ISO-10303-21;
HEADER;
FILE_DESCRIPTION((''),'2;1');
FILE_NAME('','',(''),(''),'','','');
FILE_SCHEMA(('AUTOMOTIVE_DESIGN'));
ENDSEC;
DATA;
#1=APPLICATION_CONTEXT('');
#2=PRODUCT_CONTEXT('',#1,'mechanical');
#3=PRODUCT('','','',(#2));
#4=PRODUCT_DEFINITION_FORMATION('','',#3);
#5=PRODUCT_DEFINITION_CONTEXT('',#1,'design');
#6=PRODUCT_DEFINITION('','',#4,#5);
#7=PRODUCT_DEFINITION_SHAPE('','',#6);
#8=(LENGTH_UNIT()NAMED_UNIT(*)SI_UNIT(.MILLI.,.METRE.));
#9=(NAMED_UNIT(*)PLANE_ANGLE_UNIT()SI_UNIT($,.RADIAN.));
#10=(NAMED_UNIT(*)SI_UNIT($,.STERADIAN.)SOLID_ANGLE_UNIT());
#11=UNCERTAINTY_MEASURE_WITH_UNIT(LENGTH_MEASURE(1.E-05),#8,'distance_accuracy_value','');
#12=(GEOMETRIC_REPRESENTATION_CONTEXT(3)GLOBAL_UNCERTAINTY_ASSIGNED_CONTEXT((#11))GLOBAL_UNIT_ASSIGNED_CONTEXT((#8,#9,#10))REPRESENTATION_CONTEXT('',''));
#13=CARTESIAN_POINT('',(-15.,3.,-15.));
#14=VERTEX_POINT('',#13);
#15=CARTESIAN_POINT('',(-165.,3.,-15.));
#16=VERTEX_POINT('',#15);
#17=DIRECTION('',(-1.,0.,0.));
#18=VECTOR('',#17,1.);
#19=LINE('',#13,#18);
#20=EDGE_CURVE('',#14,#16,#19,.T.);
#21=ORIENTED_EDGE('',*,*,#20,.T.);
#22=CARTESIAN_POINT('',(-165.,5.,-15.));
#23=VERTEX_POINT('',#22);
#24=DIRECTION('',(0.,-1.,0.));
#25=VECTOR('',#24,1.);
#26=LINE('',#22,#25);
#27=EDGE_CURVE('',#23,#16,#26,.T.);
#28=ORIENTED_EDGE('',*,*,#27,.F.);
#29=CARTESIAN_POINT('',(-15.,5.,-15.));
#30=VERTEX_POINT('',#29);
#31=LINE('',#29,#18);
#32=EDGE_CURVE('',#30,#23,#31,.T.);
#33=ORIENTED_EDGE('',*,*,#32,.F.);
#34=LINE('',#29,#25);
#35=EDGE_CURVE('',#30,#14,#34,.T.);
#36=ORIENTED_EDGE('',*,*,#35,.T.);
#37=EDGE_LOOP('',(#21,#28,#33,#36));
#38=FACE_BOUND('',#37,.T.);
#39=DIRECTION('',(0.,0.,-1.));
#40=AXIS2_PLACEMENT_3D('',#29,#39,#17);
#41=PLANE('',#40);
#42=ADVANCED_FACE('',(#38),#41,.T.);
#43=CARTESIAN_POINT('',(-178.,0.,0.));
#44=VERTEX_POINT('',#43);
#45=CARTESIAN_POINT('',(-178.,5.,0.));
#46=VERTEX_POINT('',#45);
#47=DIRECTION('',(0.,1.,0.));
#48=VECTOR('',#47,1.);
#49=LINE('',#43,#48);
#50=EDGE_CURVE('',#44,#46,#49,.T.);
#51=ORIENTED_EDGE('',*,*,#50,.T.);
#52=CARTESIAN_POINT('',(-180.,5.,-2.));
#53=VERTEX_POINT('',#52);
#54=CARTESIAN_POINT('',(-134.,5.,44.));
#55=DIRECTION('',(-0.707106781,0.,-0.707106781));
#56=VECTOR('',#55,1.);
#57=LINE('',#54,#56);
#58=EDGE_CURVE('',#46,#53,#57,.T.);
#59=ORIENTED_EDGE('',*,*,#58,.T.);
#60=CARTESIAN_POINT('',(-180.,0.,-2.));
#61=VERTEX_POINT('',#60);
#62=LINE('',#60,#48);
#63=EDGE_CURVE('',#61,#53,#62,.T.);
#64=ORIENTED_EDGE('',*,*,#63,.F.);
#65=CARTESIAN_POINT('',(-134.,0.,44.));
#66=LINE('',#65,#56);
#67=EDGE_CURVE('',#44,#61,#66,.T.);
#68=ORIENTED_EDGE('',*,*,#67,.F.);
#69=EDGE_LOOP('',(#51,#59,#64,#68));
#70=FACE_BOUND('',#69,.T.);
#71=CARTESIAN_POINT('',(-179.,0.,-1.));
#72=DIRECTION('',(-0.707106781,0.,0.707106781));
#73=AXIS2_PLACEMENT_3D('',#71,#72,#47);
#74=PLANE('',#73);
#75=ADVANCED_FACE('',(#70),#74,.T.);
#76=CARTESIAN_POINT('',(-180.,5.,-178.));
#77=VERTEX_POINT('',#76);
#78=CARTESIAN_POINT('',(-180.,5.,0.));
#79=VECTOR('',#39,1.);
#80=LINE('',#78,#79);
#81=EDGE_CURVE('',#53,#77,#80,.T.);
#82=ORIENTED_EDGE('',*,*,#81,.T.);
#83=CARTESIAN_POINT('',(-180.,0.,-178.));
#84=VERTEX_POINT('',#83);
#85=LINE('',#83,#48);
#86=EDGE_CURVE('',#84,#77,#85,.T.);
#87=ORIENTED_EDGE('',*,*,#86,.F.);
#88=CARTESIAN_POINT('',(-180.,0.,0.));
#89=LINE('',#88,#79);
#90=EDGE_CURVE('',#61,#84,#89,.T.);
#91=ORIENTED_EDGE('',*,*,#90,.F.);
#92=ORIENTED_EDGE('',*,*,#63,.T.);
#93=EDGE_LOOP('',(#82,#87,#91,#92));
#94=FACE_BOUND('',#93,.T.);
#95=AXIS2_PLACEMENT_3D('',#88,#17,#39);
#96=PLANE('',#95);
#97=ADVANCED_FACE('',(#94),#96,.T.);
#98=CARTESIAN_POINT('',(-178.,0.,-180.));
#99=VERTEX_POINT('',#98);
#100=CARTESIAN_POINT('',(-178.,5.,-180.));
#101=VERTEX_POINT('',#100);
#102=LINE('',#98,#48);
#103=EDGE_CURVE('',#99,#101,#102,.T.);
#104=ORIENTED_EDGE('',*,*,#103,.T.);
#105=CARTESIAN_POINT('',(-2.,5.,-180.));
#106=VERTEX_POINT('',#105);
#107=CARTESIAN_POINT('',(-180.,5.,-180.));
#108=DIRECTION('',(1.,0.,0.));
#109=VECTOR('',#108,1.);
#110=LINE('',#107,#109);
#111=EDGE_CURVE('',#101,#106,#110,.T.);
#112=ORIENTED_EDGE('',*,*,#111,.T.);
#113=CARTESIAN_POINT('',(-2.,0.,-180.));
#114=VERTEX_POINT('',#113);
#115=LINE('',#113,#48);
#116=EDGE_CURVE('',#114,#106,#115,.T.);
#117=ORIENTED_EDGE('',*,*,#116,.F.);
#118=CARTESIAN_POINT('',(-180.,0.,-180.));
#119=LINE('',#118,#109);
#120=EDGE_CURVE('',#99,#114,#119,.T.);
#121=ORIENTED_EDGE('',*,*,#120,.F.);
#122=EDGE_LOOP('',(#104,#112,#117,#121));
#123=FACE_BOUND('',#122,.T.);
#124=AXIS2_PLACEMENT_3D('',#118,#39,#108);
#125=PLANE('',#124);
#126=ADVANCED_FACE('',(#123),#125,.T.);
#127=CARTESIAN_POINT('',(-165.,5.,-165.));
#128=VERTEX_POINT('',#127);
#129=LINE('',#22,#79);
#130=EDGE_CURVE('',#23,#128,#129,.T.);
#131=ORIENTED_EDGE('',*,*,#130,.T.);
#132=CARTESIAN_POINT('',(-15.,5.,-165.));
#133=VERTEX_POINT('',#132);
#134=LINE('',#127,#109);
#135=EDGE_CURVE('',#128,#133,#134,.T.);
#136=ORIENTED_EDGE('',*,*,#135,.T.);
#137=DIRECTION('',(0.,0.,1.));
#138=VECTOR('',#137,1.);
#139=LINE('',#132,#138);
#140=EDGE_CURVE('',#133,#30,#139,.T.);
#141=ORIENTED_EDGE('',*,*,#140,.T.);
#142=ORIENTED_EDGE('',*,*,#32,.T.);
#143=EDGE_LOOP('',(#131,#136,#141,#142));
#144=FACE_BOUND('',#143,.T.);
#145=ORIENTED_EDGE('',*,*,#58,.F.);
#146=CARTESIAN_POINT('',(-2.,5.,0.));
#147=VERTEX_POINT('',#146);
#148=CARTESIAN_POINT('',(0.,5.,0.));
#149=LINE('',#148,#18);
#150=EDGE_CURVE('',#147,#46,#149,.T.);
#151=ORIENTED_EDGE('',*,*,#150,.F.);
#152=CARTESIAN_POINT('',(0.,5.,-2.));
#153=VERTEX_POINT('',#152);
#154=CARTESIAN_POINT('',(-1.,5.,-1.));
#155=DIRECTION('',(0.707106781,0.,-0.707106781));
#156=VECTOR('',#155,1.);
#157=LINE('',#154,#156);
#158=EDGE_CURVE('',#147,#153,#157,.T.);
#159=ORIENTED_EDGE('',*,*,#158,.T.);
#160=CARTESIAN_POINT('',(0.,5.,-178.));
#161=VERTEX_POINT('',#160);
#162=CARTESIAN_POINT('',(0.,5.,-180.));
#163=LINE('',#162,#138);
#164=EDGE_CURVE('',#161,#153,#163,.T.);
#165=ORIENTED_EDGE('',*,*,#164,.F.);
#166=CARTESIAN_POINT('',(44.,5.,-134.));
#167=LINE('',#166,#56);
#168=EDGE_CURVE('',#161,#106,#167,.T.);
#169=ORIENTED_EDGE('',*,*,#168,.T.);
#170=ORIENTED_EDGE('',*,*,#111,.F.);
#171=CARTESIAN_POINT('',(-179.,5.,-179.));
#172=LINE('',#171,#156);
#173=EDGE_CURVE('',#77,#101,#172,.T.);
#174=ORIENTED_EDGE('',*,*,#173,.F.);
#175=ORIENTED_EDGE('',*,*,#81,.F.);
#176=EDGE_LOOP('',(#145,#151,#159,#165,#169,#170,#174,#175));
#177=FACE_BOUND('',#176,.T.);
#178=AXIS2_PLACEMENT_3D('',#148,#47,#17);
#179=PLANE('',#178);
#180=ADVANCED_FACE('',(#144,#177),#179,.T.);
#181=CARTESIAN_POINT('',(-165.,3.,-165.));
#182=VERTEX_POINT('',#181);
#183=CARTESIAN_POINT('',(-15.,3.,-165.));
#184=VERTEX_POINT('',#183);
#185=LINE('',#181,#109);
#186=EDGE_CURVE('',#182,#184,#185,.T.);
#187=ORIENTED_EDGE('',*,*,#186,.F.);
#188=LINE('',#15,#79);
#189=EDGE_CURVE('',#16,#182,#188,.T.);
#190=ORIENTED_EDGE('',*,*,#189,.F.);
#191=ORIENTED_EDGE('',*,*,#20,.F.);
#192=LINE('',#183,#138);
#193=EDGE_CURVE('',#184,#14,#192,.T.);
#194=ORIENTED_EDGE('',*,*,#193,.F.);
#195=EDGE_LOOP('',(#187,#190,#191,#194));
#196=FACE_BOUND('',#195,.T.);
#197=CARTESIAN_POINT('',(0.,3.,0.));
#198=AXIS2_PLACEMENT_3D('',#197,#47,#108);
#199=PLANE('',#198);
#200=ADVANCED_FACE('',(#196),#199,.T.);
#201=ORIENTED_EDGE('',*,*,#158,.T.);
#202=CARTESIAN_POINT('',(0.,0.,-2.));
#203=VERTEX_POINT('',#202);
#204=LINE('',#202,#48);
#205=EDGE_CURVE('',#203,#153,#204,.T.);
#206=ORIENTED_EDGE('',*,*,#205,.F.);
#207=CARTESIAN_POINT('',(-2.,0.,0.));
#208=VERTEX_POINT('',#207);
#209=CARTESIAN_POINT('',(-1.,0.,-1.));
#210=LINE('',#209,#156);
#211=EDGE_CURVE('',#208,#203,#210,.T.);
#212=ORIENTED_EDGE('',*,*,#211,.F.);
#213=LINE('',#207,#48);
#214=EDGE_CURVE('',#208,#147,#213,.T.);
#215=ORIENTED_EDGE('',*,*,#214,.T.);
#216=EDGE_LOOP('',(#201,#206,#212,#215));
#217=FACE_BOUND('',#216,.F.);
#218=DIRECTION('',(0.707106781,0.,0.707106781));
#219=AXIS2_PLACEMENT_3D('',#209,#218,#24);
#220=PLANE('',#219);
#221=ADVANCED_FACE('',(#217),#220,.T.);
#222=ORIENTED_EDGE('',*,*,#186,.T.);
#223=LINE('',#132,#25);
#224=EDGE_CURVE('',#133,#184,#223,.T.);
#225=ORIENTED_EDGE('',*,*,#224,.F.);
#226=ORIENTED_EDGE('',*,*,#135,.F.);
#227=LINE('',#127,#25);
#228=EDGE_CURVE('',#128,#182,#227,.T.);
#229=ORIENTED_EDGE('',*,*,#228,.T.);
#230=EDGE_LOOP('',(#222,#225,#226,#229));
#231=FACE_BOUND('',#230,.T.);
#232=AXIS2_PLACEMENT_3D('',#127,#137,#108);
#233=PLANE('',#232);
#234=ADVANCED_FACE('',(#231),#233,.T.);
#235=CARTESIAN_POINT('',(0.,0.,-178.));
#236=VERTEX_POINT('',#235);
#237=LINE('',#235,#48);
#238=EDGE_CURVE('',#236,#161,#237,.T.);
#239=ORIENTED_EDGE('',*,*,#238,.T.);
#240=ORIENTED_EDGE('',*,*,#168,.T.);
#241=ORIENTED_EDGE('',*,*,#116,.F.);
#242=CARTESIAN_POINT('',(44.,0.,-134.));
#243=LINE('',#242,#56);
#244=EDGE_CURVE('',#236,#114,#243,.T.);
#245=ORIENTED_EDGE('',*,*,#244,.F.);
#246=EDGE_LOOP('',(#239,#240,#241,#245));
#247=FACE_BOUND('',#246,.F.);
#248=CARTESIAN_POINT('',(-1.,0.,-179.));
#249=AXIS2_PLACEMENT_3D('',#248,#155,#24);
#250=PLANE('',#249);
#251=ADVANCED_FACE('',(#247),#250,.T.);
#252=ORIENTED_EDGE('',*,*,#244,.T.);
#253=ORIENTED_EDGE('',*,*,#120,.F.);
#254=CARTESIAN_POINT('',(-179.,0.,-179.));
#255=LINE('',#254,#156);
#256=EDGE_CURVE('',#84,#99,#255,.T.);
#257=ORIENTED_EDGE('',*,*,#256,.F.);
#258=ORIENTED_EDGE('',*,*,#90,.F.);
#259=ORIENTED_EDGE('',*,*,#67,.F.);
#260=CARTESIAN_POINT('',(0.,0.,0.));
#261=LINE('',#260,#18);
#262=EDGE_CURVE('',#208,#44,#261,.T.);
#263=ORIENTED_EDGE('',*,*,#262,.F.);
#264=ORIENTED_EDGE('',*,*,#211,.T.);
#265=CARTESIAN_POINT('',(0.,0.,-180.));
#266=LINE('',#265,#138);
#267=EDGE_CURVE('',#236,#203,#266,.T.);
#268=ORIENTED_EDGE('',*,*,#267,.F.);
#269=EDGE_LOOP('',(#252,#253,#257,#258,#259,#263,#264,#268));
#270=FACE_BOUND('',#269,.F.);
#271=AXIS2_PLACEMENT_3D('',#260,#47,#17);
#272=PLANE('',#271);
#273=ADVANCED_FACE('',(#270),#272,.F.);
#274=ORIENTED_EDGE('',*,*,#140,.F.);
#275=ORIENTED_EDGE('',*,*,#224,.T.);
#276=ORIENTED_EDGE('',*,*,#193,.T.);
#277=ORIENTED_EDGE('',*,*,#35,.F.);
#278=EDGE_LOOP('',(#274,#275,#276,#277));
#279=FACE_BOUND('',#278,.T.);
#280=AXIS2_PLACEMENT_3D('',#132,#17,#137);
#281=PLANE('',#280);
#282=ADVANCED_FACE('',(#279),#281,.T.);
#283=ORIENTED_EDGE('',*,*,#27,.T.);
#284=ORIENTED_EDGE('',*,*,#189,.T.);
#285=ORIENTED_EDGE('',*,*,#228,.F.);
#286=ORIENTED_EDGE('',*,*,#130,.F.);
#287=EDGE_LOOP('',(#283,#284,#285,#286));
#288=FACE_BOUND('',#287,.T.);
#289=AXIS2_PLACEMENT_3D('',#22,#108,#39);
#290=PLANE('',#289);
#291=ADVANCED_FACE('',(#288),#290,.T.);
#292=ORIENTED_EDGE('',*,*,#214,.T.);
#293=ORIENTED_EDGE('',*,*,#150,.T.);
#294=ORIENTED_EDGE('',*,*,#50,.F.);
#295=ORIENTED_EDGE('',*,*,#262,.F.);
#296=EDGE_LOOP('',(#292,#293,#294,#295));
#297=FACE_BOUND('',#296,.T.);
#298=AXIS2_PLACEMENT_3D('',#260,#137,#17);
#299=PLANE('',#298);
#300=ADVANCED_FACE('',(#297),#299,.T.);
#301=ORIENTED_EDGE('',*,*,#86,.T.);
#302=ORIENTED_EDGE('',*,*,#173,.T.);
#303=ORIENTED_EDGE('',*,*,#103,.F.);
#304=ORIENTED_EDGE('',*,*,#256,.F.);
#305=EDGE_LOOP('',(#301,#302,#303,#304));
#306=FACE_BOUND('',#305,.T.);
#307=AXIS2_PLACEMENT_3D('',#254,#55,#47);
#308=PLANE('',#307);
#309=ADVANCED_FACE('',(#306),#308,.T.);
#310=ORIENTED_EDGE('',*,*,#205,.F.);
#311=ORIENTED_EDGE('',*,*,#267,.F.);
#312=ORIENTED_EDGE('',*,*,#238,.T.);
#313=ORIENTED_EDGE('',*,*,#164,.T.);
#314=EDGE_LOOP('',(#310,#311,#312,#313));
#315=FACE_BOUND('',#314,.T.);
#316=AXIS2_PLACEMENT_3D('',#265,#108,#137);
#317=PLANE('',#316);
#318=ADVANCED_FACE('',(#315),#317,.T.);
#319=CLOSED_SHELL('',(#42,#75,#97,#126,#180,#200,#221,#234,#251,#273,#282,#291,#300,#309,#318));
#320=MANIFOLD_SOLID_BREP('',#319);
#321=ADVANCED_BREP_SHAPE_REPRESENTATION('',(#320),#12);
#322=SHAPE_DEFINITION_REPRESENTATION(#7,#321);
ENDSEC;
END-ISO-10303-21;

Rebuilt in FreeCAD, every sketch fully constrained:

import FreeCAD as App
import Part
import Sketcher
from FreeCAD import Vector


def edges_at(feature, points):
    """Names of the edges that pass closest to the given points."""
    edges = feature.Shape.Edges
    near = lambda p: min(range(len(edges)), key=lambda i: edges[i].distToShape(Part.Vertex(*p))[0])
    return sorted({f"Edge{near(p) + 1}" for p in points})


def add_polygon(sketch, points):
    """Adds a closed chain of lines whose ends are joined by coincident constraints."""
    first, n = sketch.GeometryCount, len(points)
    for a, b in zip(points, points[1:] + points[:1]):
        sketch.addGeometry(Part.LineSegment(App.Vector(*a, 0), App.Vector(*b, 0)), False)
    for i in range(n):
        sketch.addConstraint(Sketcher.Constraint("Coincident", first + i, 2, first + (i + 1) % n, 1))

doc = App.newDocument("Part")
params = doc.addObject("Spreadsheet::Sheet", "Params")
for row, (alias, value) in enumerate([
    ("sketch1_width", "180 mm"),
    ("pad1_length", "5 mm"),
    ("sketch2_width", "150 mm"),
    ("pocket1_length", "2 mm"),
    ("chamfer_size", "2 mm"),
], start=1):
    params.set(f"A{row}", alias)
    params.set(f"B{row}", "=" + value)
    params.setAlias(f"B{row}", alias)

body = doc.addObject("PartDesign::Body", "Body")

sketch1 = doc.addObject("Sketcher::SketchObject", "Sketch")
body.addObject(sketch1)
sketch1.AttachmentSupport = (doc.XZ_Plane, [""])
sketch1.MapMode = "FlatFace"
add_polygon(sketch1, [(-180, 0), (0, 0), (0, -180), (-180, -180)])
sketch1.addConstraint(Sketcher.Constraint("Horizontal", 0))
sketch1.addConstraint(Sketcher.Constraint("Vertical", 1))
sketch1.addConstraint(Sketcher.Constraint("Horizontal", 2))
sketch1.addConstraint(Sketcher.Constraint("Vertical", 3))
sketch1.addConstraint(Sketcher.Constraint("Coincident", 0, 2, -1, 1))
sketch1.addConstraint(Sketcher.Constraint("Equal", 2, 1))
sketch1.addConstraint(Sketcher.Constraint("DistanceX", 0, 1, 0, 2, 180.0))
sketch1.setExpression("Constraints[10]", "Params.sketch1_width")
pad1 = doc.addObject("PartDesign::Pad", "Pad")
body.addObject(pad1)
pad1.Profile = sketch1
pad1.setExpression("Length", "Params.pad1_length")
pad1.Reversed = True

sketch2 = doc.addObject("Sketcher::SketchObject", "Sketch001")
body.addObject(sketch2)
sketch2.AttachmentSupport = (doc.XZ_Plane, [""])
sketch2.MapMode = "FlatFace"
sketch2.AttachmentOffset = App.Placement(Vector(0, 0, -5), App.Rotation())
add_polygon(sketch2, [(-15, -165), (-165, -165), (-165, -15), (-15, -15)])
sketch2.addConstraint(Sketcher.Constraint("Horizontal", 0))
sketch2.addConstraint(Sketcher.Constraint("Vertical", 1))
sketch2.addConstraint(Sketcher.Constraint("Horizontal", 2))
sketch2.addConstraint(Sketcher.Constraint("Vertical", 3))
sketch2.addConstraint(Sketcher.Constraint("Equal", 2, 1))
sketch2.addConstraint(Sketcher.Constraint("DistanceX", 0, 2, 0, 1, 150.0))
sketch2.addConstraint(Sketcher.Constraint("DistanceY", 1, 2, -1, 1, 15.0))
sketch2.addConstraint(Sketcher.Constraint("DistanceX", 2, 2, -1, 1, 15.0))
sketch2.setExpression("Constraints[9]", "Params.sketch2_width")
pocket1 = doc.addObject("PartDesign::Pocket", "Pocket")
body.addObject(pocket1)
pocket1.Profile = sketch2
pocket1.setExpression("Length", "Params.pocket1_length")
pocket1.Reversed = True
doc.recompute()

chamfer = doc.addObject("PartDesign::Chamfer", "Chamfer")
body.addObject(chamfer)
chamfer.Base = (pocket1, edges_at(pocket1, [
    (-180, 2.5, 0),
    (-180, 2.5, -180),
    (0, 2.5, -180),
    (0, 2.5, 0),
]))
chamfer.setExpression("Size", "Params.chamfer_size")

doc.recompute()
